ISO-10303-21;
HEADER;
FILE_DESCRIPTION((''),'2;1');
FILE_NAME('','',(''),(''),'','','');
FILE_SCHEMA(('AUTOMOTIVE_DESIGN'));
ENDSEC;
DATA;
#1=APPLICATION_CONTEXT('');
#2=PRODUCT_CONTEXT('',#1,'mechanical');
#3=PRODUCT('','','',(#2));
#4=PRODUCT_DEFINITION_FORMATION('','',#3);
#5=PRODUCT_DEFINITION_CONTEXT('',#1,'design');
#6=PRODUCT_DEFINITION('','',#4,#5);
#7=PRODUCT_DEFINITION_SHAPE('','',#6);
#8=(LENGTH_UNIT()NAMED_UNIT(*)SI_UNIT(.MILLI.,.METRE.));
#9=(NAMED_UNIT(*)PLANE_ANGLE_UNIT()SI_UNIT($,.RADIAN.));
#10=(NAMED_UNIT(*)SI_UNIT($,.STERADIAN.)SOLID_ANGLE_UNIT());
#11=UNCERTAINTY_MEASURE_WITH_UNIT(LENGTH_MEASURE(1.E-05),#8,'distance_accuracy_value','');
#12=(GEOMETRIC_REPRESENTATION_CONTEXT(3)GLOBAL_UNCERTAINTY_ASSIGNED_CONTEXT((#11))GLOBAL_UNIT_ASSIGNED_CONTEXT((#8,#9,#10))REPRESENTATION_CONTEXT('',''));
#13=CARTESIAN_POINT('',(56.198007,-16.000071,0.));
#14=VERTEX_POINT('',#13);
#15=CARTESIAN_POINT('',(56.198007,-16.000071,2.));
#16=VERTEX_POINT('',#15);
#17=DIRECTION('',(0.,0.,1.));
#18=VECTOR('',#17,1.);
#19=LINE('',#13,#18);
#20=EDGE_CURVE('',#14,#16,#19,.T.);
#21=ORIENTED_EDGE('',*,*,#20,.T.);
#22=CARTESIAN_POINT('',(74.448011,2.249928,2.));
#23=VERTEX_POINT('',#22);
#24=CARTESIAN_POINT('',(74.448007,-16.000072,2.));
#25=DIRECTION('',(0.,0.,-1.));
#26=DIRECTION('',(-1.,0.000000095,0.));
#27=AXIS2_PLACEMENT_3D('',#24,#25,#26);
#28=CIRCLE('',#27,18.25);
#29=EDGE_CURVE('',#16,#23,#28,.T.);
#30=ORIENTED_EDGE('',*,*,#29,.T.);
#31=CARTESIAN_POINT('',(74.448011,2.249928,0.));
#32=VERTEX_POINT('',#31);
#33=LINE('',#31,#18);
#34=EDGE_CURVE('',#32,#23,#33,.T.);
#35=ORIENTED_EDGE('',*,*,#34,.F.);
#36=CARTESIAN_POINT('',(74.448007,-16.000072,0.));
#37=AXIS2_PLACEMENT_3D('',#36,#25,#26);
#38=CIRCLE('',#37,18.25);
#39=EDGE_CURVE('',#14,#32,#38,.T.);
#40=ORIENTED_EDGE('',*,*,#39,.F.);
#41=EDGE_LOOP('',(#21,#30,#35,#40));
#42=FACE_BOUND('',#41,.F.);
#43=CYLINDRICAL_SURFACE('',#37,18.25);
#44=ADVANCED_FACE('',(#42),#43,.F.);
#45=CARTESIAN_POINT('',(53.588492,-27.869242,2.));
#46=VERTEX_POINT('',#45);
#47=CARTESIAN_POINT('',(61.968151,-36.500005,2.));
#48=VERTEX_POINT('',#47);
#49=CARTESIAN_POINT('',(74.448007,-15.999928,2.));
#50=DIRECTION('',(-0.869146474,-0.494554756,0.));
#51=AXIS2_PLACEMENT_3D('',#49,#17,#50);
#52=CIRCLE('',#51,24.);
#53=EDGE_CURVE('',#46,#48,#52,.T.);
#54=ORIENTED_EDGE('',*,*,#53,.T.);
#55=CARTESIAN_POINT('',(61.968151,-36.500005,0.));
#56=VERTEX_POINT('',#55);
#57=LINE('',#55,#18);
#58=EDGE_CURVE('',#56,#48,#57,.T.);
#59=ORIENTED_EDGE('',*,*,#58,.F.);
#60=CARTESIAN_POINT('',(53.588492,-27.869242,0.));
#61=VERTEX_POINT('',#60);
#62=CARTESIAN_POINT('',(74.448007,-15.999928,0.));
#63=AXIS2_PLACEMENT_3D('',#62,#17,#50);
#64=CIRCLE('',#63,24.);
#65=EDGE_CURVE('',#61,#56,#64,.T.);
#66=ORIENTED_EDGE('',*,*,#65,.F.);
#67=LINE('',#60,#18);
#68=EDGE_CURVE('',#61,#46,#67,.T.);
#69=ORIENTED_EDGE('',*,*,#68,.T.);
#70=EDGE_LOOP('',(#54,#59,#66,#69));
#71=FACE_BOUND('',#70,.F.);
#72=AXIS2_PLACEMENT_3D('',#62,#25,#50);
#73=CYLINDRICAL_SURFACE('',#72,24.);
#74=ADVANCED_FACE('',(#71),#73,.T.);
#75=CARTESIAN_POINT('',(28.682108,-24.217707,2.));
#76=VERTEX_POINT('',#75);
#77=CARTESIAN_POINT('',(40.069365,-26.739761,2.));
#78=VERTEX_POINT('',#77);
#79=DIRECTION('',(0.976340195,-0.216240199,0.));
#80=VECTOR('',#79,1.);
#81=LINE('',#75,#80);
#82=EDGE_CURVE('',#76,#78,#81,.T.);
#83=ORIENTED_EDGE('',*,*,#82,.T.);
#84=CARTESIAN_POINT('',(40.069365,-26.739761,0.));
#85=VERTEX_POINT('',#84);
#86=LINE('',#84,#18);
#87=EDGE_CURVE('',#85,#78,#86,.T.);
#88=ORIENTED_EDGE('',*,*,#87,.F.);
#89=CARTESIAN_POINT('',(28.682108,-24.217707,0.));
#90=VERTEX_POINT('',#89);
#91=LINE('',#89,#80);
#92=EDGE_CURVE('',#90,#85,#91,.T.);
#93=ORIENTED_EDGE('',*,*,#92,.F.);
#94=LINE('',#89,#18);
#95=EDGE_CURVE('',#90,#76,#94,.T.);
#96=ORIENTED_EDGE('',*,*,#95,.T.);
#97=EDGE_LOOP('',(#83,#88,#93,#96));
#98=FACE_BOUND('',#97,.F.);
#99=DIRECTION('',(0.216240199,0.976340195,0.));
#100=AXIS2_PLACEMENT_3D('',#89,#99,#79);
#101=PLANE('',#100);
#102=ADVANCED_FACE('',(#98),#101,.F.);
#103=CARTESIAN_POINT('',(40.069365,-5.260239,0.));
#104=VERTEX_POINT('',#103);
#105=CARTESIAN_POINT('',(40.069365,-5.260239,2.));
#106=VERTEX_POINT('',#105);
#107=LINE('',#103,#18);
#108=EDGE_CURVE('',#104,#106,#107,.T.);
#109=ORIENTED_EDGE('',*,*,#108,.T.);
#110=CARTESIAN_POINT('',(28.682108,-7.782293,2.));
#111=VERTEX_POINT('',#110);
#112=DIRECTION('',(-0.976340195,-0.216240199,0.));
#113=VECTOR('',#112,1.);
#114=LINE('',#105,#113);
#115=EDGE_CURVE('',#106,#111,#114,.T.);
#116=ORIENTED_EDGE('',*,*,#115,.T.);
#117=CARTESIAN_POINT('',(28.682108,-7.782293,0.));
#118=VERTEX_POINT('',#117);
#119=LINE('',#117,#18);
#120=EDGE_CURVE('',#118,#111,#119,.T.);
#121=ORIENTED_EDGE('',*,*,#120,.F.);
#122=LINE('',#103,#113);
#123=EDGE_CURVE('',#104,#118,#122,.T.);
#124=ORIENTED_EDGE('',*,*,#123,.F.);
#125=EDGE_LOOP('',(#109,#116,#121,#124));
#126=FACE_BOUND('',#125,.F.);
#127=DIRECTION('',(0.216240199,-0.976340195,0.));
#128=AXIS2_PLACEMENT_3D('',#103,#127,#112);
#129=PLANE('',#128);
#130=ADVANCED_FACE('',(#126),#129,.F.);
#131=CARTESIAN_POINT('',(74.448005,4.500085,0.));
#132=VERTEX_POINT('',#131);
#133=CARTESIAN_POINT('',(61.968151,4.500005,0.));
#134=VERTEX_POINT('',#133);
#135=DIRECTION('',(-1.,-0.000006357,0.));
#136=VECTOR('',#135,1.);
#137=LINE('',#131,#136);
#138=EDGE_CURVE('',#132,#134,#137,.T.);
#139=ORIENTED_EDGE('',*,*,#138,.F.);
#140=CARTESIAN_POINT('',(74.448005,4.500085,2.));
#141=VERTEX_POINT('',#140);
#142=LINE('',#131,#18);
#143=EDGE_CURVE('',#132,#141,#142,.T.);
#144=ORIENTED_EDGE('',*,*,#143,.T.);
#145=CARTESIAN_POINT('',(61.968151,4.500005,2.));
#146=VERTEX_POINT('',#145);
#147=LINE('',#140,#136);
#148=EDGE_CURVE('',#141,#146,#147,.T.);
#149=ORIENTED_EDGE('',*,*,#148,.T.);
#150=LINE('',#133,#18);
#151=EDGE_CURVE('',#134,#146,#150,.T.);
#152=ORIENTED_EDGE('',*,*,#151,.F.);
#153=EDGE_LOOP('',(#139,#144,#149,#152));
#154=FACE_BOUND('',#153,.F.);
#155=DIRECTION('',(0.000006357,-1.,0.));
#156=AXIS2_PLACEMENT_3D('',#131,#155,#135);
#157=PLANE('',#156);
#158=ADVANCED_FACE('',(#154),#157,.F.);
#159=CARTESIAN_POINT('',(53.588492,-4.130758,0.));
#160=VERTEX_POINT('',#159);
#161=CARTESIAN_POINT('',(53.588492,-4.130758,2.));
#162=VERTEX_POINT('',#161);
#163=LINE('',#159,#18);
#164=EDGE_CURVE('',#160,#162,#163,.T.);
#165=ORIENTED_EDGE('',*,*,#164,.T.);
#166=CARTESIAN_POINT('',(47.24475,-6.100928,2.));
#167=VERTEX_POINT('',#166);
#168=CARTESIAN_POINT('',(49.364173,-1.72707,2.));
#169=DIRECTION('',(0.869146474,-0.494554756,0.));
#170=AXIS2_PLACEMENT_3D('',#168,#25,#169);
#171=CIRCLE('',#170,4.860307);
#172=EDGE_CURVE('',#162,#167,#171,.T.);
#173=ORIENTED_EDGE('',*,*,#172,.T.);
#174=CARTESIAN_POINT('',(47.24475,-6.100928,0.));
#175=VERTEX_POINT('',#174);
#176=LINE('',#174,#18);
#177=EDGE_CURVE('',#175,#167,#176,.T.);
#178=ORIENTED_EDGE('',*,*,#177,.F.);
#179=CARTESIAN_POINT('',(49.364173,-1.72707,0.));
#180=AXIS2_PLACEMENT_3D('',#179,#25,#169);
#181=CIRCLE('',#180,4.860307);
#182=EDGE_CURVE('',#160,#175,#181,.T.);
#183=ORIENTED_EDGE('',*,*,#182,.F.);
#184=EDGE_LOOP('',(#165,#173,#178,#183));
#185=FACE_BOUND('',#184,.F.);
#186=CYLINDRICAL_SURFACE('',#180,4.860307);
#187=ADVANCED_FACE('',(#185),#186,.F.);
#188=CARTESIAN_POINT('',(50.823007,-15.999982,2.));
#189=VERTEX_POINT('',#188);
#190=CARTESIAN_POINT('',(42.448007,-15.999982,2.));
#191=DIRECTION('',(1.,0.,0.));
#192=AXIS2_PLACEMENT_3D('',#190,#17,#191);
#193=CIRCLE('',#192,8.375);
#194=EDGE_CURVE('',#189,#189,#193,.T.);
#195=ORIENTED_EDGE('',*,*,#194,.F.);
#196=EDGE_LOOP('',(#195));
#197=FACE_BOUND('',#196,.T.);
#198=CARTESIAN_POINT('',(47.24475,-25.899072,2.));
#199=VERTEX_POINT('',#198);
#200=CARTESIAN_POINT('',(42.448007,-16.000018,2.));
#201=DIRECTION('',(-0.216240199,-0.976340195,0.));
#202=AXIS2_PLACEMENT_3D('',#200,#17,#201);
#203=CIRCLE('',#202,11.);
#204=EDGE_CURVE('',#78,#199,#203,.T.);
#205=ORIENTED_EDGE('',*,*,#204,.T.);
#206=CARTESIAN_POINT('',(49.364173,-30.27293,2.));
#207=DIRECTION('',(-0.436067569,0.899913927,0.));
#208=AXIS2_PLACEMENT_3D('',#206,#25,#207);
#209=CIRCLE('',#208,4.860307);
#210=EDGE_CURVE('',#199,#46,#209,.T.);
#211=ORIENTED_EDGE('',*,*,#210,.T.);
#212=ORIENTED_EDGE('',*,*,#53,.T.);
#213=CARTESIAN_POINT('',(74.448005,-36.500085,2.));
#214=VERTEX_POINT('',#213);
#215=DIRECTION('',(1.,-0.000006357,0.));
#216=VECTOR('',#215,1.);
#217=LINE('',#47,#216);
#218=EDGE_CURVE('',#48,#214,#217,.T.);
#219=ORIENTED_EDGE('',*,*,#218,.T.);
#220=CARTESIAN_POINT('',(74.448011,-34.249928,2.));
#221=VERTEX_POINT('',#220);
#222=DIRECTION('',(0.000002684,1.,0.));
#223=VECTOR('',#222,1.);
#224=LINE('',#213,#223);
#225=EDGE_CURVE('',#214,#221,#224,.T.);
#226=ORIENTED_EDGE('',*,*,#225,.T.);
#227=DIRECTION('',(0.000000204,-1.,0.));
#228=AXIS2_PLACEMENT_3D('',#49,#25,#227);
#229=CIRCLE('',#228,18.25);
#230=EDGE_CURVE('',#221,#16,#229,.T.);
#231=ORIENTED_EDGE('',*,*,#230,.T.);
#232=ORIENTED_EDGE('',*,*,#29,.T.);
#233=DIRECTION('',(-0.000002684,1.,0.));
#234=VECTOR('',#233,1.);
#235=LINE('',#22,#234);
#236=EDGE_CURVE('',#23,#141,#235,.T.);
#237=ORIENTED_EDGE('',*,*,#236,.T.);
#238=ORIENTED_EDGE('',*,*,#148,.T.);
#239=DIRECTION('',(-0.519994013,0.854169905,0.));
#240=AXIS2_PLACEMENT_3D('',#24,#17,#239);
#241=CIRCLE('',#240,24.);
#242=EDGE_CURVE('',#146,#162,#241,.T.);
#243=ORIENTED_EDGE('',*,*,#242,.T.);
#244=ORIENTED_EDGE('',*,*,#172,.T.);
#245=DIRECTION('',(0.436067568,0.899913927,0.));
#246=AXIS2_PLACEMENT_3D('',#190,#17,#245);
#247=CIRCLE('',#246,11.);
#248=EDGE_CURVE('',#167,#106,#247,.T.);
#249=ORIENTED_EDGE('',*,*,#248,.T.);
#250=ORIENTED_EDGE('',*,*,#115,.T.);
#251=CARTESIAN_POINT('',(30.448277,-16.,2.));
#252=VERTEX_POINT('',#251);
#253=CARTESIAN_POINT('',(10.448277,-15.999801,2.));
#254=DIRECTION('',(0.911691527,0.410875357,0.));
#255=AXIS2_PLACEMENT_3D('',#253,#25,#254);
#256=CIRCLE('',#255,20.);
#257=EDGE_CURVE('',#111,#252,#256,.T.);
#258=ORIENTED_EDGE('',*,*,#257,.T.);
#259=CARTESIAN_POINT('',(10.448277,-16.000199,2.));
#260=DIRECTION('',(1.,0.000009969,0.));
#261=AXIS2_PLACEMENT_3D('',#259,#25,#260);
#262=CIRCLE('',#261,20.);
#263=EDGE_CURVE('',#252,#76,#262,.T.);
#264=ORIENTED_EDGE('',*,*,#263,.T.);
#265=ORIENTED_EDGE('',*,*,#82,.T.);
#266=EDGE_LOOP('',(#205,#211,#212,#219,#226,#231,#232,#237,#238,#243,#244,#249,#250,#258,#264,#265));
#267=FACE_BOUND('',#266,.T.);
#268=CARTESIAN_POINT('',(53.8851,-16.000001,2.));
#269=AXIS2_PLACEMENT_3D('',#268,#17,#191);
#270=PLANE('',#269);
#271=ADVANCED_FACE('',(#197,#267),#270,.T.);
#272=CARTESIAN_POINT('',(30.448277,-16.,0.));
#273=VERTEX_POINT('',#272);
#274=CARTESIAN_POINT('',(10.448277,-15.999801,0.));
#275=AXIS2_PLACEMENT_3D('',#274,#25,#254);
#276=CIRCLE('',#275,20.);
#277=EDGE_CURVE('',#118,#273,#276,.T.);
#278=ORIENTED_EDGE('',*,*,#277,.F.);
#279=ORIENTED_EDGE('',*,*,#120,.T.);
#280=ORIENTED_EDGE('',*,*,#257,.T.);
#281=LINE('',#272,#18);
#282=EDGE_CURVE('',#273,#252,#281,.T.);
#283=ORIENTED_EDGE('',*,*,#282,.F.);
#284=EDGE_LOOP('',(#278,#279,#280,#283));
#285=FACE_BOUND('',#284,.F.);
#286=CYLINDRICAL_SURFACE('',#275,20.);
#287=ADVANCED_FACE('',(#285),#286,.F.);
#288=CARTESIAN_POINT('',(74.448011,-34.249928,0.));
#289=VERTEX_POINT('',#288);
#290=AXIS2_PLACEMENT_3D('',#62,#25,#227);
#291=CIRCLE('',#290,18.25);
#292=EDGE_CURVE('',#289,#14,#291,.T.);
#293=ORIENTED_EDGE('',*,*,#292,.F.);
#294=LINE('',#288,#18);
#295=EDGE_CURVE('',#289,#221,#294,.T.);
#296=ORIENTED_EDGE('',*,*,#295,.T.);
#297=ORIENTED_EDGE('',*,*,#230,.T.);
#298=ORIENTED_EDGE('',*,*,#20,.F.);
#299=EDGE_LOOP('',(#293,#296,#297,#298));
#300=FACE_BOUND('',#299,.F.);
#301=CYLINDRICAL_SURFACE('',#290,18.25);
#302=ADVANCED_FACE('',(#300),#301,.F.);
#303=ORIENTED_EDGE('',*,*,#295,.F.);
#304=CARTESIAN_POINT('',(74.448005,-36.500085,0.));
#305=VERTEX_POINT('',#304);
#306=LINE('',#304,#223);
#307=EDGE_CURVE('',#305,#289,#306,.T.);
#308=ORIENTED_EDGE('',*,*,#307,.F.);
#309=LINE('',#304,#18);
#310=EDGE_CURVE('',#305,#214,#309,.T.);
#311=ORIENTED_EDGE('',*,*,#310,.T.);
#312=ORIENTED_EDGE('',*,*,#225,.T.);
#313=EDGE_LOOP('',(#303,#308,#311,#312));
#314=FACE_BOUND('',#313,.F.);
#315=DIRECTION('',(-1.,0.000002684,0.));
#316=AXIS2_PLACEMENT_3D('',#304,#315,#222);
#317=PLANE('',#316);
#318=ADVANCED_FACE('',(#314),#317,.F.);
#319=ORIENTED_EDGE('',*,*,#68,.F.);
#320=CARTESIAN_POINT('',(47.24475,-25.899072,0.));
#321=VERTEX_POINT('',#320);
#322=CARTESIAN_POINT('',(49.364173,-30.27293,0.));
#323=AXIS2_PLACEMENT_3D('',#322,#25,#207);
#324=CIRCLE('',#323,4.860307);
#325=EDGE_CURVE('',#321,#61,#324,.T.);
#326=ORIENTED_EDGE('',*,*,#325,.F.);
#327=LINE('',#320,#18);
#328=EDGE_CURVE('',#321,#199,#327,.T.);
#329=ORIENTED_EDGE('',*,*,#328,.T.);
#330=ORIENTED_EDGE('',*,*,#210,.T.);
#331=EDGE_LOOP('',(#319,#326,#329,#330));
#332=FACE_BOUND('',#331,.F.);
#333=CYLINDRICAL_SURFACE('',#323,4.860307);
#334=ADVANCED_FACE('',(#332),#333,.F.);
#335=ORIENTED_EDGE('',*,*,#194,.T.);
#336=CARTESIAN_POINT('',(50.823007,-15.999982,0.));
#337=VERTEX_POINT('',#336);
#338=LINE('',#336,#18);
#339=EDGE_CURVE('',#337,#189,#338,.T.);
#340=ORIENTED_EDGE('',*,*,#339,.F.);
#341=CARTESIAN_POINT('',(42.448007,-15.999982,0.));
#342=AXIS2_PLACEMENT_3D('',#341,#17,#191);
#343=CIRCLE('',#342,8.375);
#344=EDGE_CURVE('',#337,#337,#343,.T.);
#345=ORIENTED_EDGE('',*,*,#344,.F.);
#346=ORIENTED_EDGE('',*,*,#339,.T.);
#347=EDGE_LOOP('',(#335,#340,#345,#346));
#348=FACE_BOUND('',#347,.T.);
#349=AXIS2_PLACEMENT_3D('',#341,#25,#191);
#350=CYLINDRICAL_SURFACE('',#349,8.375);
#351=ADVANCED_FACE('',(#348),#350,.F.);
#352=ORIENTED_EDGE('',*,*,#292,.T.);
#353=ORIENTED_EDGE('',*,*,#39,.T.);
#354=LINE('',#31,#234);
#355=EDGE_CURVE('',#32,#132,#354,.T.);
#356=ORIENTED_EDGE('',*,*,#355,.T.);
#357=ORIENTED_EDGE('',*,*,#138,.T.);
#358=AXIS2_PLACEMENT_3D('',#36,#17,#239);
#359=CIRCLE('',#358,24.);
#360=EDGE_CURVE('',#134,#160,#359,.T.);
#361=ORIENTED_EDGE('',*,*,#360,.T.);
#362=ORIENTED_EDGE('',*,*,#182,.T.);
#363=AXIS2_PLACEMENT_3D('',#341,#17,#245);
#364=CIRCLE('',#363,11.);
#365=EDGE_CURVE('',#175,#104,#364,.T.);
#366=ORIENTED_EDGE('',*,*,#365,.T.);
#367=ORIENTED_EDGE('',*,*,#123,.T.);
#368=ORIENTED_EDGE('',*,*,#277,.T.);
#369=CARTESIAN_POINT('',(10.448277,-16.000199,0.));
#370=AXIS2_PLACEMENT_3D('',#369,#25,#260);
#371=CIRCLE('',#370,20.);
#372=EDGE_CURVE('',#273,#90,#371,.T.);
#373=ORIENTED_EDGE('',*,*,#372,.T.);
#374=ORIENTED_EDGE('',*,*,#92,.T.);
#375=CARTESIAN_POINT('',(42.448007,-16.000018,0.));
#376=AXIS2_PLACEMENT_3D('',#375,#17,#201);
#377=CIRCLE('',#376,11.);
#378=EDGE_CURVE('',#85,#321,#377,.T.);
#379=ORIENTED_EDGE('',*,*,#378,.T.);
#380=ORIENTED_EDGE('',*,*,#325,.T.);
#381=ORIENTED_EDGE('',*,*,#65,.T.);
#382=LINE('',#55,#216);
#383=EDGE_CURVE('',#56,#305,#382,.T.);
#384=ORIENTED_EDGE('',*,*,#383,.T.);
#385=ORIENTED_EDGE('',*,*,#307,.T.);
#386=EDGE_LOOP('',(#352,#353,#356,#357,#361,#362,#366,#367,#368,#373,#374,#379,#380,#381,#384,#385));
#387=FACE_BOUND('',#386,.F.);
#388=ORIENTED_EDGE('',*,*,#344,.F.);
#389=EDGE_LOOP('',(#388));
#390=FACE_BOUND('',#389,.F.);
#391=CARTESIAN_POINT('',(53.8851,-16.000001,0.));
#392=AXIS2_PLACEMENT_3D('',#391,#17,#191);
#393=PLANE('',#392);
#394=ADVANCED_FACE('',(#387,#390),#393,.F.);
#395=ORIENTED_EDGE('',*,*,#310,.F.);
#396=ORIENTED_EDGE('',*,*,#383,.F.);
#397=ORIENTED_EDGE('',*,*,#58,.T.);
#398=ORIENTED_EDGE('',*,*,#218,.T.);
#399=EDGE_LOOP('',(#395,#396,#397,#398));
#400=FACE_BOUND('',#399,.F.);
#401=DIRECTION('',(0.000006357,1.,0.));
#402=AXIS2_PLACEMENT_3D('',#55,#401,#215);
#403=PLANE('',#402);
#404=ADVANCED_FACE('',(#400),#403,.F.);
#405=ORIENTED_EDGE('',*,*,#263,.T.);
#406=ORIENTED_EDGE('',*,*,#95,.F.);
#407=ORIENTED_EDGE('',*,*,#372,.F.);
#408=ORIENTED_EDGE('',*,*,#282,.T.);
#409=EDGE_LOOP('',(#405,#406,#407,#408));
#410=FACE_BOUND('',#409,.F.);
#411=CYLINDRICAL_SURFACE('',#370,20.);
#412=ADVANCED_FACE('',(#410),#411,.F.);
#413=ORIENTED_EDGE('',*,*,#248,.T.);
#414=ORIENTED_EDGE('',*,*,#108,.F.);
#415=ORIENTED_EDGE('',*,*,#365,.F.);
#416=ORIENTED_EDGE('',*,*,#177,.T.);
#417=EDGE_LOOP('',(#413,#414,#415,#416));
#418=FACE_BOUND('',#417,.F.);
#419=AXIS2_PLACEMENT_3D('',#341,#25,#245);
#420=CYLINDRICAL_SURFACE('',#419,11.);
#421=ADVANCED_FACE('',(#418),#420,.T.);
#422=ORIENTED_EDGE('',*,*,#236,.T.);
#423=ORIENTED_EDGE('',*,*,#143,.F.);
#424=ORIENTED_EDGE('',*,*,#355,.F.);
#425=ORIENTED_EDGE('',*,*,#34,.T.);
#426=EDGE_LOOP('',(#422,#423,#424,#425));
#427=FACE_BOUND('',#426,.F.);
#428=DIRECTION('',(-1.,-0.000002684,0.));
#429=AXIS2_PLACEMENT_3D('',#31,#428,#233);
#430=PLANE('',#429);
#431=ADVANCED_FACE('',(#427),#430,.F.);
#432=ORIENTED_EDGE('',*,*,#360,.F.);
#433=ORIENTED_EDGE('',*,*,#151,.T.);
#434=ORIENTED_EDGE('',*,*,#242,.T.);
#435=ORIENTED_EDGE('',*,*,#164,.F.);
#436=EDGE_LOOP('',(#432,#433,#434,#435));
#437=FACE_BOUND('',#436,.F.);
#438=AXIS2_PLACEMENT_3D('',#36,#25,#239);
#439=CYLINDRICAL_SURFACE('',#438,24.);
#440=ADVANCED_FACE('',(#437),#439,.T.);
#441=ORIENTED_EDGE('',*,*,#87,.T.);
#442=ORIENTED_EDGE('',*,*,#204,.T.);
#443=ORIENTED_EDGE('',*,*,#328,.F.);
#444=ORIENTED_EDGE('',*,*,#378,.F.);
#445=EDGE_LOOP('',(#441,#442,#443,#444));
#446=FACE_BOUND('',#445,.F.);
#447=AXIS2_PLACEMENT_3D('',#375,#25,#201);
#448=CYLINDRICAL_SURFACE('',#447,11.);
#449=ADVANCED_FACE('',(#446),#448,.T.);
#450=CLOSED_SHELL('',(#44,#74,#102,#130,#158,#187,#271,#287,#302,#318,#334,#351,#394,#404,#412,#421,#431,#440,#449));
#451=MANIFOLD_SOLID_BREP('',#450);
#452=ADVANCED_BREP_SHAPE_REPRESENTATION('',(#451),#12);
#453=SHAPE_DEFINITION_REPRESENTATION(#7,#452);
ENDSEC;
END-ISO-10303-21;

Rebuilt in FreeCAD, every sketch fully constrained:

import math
import FreeCAD as App
import Part
import Sketcher

doc = App.newDocument("Part")
body = doc.addObject("PartDesign::Body", "Body")

# Sketch on XY plane
sketch1 = body.newObject("Sketcher::SketchObject", "Sketch")
sketch1.AttachmentSupport = (doc.getObject("XY_Plane"), [""])
sketch1.MapMode = "FlatFace"
sketch1.addGeometry([
    Part.LineSegment(App.Vector(74.448011, 2.249928, 0), App.Vector(74.448005, 4.500085, 0)),  # 0
    Part.LineSegment(App.Vector(74.448005, 4.500085, 0), App.Vector(61.968151, 4.500005, 0)),  # 1
    Part.ArcOfCircle(Part.Circle(App.Vector(74.448007, -16.000072, 0), App.Vector(0, 0, 1), 24), math.radians(121.33185), math.radians(150.359605)),  # 2
    Part.ArcOfCircle(Part.Circle(App.Vector(49.364173, -1.72707, 0), App.Vector(0, 0, 1), 4.860307), math.radians(-115.853244), math.radians(-29.640395)),  # 3
    Part.ArcOfCircle(Part.Circle(App.Vector(42.448007, -15.999982, 0), App.Vector(0, 0, 1), 11), math.radians(64.146756), math.radians(102.488297)),  # 4
    Part.LineSegment(App.Vector(40.069365, -5.260239, 0), App.Vector(28.682108, -7.782293, 0)),  # 5
    Part.ArcOfCircle(Part.Circle(App.Vector(10.448277, -15.999801, 0), App.Vector(0, 0, 1), 20), math.radians(-0.000571), math.radians(24.259835)),  # 6
    Part.ArcOfCircle(Part.Circle(App.Vector(10.448277, -16.000199, 0), App.Vector(0, 0, 1), 20), math.radians(-24.259835), math.radians(0.000571)),  # 7
    Part.LineSegment(App.Vector(28.682108, -24.217707, 0), App.Vector(40.069365, -26.739761, 0)),  # 8
    Part.ArcOfCircle(Part.Circle(App.Vector(42.448007, -16.000018, 0), App.Vector(0, 0, 1), 11), math.radians(-102.488297), math.radians(-64.146756)),  # 9
    Part.ArcOfCircle(Part.Circle(App.Vector(49.364173, -30.27293, 0), App.Vector(0, 0, 1), 4.860307), math.radians(29.640395), math.radians(115.853244)),  # 10
    Part.ArcOfCircle(Part.Circle(App.Vector(74.448007, -15.999928, 0), App.Vector(0, 0, 1), 24), math.radians(-150.359605), math.radians(-121.33185)),  # 11
    Part.LineSegment(App.Vector(61.968151, -36.500005, 0), App.Vector(74.448005, -36.500085, 0)),  # 12
    Part.LineSegment(App.Vector(74.448005, -36.500085, 0), App.Vector(74.448011, -34.249928, 0)),  # 13
    Part.ArcOfCircle(Part.Circle(App.Vector(74.448007, -15.999928, 0), App.Vector(0, 0, 1), 18.25), math.radians(-179.999551), math.radians(-89.999988)),  # 14
    Part.ArcOfCircle(Part.Circle(App.Vector(74.448007, -16.000072, 0), App.Vector(0, 0, 1), 18.25), math.radians(89.999988), math.radians(179.999995)),  # 15
    Part.Circle(App.Vector(42.448007, -15.999982, 0), App.Vector(0, 0, 1), 8.375),  # 16
], False)
sketch1.addConstraint([
    Sketcher.Constraint("Coincident", 0, 2, 1, 1),
    Sketcher.Constraint("Coincident", 1, 2, 2, 1),
    Sketcher.Constraint("Tangent", 2, 2, 3, 2),
    Sketcher.Constraint("Tangent", 3, 1, 4, 1),
    Sketcher.Constraint("Tangent", 4, 2, 5, 1),
    Sketcher.Constraint("Coincident", 5, 2, 6, 2),
    Sketcher.Constraint("Coincident", 6, 1, 7, 2),
    Sketcher.Constraint("Coincident", 7, 1, 8, 1),
    Sketcher.Constraint("Tangent", 8, 2, 9, 1),
    Sketcher.Constraint("Tangent", 9, 2, 10, 2),
    Sketcher.Constraint("Tangent", 10, 1, 11, 1),
    Sketcher.Constraint("Coincident", 11, 2, 12, 1),
    Sketcher.Constraint("Coincident", 12, 2, 13, 1),
    Sketcher.Constraint("Coincident", 13, 2, 14, 2),
    Sketcher.Constraint("Coincident", 14, 1, 15, 2),
    Sketcher.Constraint("Coincident", 15, 1, 0, 1),
    Sketcher.Constraint("Coincident", 14, 3, 11, 3),
    Sketcher.Constraint("Coincident", 15, 3, 2, 3),
    Sketcher.Constraint("Coincident", 16, 3, 4, 3),
    Sketcher.Constraint("Equal", 6, 7),
    Sketcher.Constraint("Equal", 4, 9),
    Sketcher.Constraint("Equal", 3, 10),
    Sketcher.Constraint("Equal", 2, 11),
    Sketcher.Constraint("Equal", 14, 15),
    Sketcher.Constraint("Horizontal", 15, 3, 14, 1),
    Sketcher.Constraint("Vertical", 4, 3, 9, 3),
    Sketcher.Constraint("Vertical", 3, 3, 10, 3),
    Sketcher.Constraint("Vertical", 5, 2, 7, 1),
    Sketcher.Constraint("Vertical", 4, 2, 8, 2),
    Sketcher.Constraint("Vertical", 1, 2, 11, 2),
    Sketcher.Constraint("Vertical", 0, 2, 12, 2),
    Sketcher.Constraint("Vertical", 13, 2, 15, 1),
    Sketcher.Constraint("Equal", 0, 13),
    Sketcher.Constraint("Radius", 2, 24.0),
    Sketcher.Constraint("Radius", 4, 11.0),
    Sketcher.Constraint("Radius", 6, 20.0),
    Sketcher.Constraint("Diameter", 16, 16.75),
    Sketcher.Constraint("Radius", 14, 18.25),
    Sketcher.Constraint("DistanceY", 6, 1, -1, 1, 16.0),
    Sketcher.Constraint("DistanceX", 4, 3, 2, 3, 32.0),
    Sketcher.Constraint("Radius", 3, 4.860307),
    Sketcher.Constraint("DistanceY", 9, 2, 14, 1, 9.899001),
    Sketcher.Constraint("DistanceY", 6, 3, -1, 1, 15.999801),
    Sketcher.Constraint("DistanceY", 7, 3, -1, 1, 16.000199),
    Sketcher.Constraint("DistanceX", 5, 2, 16, 3, 13.765899),
    Sketcher.Constraint("DistanceX", 9, 2, 11, 2, 14.7234),
    Sketcher.Constraint("DistanceY", 3, 3, -1, 1, 1.72707),
    Sketcher.Constraint("DistanceX", -1, 1, 1, 2, 61.968151),
    Sketcher.Constraint("DistanceY", 4, 2, -1, 1, 5.260239),
    Sketcher.Constraint("DistanceX", -1, 1, 13, 2, 74.448011),
    Sketcher.Constraint("Distance", 0, 2.250157),
    Sketcher.Constraint("Distance", 1, 12.479854),
])
pad1 = body.newObject("PartDesign::Pad", "Pad")
pad1.Profile = sketch1
pad1.Length = 2

doc.recompute()
